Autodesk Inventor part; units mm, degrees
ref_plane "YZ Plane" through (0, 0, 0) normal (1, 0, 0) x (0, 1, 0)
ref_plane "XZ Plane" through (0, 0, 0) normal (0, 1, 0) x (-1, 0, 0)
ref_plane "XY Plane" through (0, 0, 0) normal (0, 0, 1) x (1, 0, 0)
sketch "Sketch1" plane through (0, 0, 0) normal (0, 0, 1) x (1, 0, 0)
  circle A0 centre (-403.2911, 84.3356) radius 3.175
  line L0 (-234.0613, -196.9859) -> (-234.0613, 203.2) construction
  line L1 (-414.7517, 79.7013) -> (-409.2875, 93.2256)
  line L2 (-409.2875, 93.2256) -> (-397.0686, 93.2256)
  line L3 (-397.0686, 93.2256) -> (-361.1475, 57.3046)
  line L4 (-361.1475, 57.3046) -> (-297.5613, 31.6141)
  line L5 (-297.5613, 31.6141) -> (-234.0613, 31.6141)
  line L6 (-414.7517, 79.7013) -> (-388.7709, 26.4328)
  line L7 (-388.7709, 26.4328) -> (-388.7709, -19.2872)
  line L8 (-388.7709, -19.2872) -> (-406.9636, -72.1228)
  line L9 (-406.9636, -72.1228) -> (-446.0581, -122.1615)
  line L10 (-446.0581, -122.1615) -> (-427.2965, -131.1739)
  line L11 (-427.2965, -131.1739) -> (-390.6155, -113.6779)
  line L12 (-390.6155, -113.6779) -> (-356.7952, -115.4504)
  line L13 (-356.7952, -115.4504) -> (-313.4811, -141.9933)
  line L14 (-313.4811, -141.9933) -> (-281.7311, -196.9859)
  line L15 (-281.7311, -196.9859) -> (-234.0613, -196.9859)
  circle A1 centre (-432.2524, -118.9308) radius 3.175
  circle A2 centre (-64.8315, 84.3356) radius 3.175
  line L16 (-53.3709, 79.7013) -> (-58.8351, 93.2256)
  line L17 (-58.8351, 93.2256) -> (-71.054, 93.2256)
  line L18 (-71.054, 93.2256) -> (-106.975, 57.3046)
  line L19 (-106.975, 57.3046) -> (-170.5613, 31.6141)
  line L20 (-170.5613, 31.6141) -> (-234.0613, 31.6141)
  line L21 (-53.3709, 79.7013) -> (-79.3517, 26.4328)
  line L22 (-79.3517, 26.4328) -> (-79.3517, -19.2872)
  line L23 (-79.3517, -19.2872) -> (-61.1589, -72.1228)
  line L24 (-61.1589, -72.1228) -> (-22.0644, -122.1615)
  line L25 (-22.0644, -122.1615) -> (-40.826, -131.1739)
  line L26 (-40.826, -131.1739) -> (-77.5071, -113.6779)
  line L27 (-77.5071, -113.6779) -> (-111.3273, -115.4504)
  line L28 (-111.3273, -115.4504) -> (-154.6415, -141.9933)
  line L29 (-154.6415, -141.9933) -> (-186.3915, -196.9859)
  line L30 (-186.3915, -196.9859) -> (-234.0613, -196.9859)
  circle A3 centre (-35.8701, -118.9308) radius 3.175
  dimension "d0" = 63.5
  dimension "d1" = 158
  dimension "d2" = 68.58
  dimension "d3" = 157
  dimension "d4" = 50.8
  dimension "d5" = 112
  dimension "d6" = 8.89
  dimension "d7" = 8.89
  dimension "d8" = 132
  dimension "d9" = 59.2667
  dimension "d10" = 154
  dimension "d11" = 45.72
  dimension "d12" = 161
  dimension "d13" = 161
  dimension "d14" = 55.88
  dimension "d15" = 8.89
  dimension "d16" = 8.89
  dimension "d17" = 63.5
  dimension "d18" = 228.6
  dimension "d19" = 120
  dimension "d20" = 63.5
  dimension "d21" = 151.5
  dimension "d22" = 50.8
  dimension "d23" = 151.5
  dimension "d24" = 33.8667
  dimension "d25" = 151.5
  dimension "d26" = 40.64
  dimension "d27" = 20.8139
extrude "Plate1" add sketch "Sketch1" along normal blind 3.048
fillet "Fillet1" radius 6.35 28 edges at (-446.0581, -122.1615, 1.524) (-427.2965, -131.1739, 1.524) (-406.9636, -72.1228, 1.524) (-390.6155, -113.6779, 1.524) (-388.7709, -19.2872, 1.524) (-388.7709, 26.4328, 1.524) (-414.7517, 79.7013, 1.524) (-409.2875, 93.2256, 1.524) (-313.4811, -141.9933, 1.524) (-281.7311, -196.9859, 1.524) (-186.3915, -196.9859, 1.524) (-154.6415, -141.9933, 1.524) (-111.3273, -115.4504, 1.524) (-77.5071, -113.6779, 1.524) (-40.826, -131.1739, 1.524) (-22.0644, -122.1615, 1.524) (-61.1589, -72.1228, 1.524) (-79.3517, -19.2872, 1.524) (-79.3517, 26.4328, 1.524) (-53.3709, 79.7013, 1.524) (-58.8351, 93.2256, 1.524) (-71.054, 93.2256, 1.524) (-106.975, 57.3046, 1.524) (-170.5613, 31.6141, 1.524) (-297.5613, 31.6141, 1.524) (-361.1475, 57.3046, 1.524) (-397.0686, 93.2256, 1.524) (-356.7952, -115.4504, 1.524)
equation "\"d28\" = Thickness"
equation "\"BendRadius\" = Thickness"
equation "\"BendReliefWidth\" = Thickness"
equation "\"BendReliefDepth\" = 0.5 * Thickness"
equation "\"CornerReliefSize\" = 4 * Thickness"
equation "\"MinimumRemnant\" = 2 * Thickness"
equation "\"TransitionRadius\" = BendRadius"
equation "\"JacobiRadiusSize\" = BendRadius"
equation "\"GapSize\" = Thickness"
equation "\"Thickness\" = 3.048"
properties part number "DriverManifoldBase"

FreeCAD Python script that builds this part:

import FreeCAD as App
import Part
import Sketcher

V = App.Vector
Q = App.Units.Quantity


def edges_at(feature, points):
    """Names of the edges that pass closest to the given points."""
    edges = feature.Shape.Edges
    near = lambda p: min(range(len(edges)), key=lambda i: edges[i].distToShape(Part.Vertex(*p))[0])
    return sorted({f"Edge{near(p) + 1}" for p in points})


def add_polygon(sketch, points):
    """Adds a closed chain of lines whose ends are joined by coincident constraints."""
    first, n = sketch.GeometryCount, len(points)
    for a, b in zip(points, points[1:] + points[:1]):
        sketch.addGeometry(Part.LineSegment(App.Vector(*a, 0), App.Vector(*b, 0)), False)
    for i in range(n):
        sketch.addConstraint(Sketcher.Constraint("Coincident", first + i, 2, first + (i + 1) % n, 1))

doc = App.newDocument("Part")
body = doc.addObject("PartDesign::Body", "Body")

# Sketch on XY plane
sketch1 = doc.addObject("Sketcher::SketchObject", "Sketch")
body.addObject(sketch1)
sketch1.AttachmentSupport = (doc.XY_Plane, [""])
sketch1.MapMode = "FlatFace"
add_polygon(sketch1, [(-409.2875, 93.2256), (-414.7517, 79.7013), (-388.7709, 26.4328), (-388.7709, -19.2872), (-406.9636, -72.1228), (-446.0581, -122.1615), (-427.2965, -131.1739), (-390.6155, -113.6779), (-356.7952, -115.4504), (-313.4811, -141.9933), (-281.7311, -196.9859), (-186.3915, -196.9859), (-154.6415, -141.9933), (-111.3273, -115.4504), (-77.5071, -113.6779), (-40.826, -131.1739), (-22.0644, -122.1615), (-61.1589, -72.1228), (-79.3517, -19.2872), (-79.3517, 26.4328), (-53.3709, 79.7013), (-58.8351, 93.2256), (-71.054, 93.2256), (-106.975, 57.3046), (-170.5613, 31.6141), (-297.5613, 31.6141), (-361.1475, 57.3046), (-397.0686, 93.2256)])  # lines 0-27
sketch1.addGeometry(Part.Circle(V(-432.2524, -118.9308, 0), V(0, 0, 1), 3.175), False)  # 28
sketch1.addGeometry(Part.Circle(V(-35.8701, -118.9308, 0), V(0, 0, 1), 3.175), False)  # 29
sketch1.addGeometry(Part.Circle(V(-403.2911, 84.3356, 0), V(0, 0, 1), 3.175), False)  # 30
sketch1.addGeometry(Part.Circle(V(-64.8315, 84.3356, 0), V(0, 0, 1), 3.175), False)  # 31
sketch1.addConstraint([
    Sketcher.Constraint("Vertical", 2),
    Sketcher.Constraint("Horizontal", 10),
    Sketcher.Constraint("Vertical", 18),
    Sketcher.Constraint("Horizontal", 21),
    Sketcher.Constraint("Horizontal", 24),
    Sketcher.Constraint("Horizontal", 27),
    Sketcher.Constraint("Equal", 28, 29),
    Sketcher.Constraint("Equal", 29, 30),
    Sketcher.Constraint("Equal", 30, 31),
    Sketcher.Constraint("Perpendicular", 20, 23),
    Sketcher.Constraint("Perpendicular", 0, 25),
    Sketcher.Constraint("Perpendicular", 22, 26),
    Sketcher.Constraint("Horizontal", 28, 3, 29, 3),
    Sketcher.Constraint("Horizontal", 30, 3, 31, 3),
    Sketcher.Constraint("Horizontal", 8, 2, 11, 2),
    Sketcher.Constraint("Horizontal", 7, 2, 12, 2),
    Sketcher.Constraint("Horizontal", 6, 2, 13, 2),
    Sketcher.Constraint("Horizontal", 5, 2, 14, 2),
    Sketcher.Constraint("Horizontal", 4, 2, 15, 2),
    Sketcher.Constraint("Horizontal", 3, 2, 16, 2),
    Sketcher.Constraint("Horizontal", 2, 2, 17, 2),
    Sketcher.Constraint("Horizontal", 1, 2, 18, 2),
    Sketcher.Constraint("Horizontal", 0, 2, 19, 2),
    Sketcher.Constraint("Horizontal", 22, 2, 25, 2),
    Sketcher.Constraint("Horizontal", 21, 2, 26, 2),
    Sketcher.Constraint("Equal", 21, 27),
    Sketcher.Constraint("Equal", 4, 9),
    Sketcher.Constraint("Equal", 9, 11),
    Sketcher.Constraint("Equal", 8, 12),
    Sketcher.Constraint("Equal", 7, 13),
    Sketcher.Constraint("Equal", 6, 14),
    Sketcher.Constraint("Equal", 5, 15),
    Sketcher.Constraint("Equal", 11, 16),
    Sketcher.Constraint("Equal", 3, 17),
    Sketcher.Constraint("Equal", 1, 19),
    Sketcher.Constraint("Equal", 0, 20),
    Sketcher.Constraint("Equal", 12, 22),
    Sketcher.Constraint("Equal", 22, 26),
    Sketcher.Constraint("Distance", 8, Q("2 in")),
    Sketcher.Constraint("DistanceY", 2, 2, 2, 1, Q("1.8 in")),
    Sketcher.Constraint("Angle", 0, Q("-112 deg")),
    Sketcher.Constraint("Distance", 3, Q("2.2 in")),
    Sketcher.Constraint("Distance", 4, Q("2.5 in")),
    Sketcher.Constraint("Distance", 6, Q("1.6 in")),
    Sketcher.Constraint("Distance", 23, Q("2.7 in")),
    Sketcher.Constraint("Diameter", 28, Q("0.25 in")),
    Sketcher.Constraint("DistanceX", 24, 2, 24, 1, Q("5 in")),
    Sketcher.Constraint("DistanceY", 31, 3, 20, 2, Q("0.35 in")),
    Sketcher.Constraint("Angle", 1, Q("-64 deg")),
    Sketcher.Constraint("Angle", 3, Q("-109 deg")),
    Sketcher.Constraint("Angle", 4, Q("-128 deg")),
    Sketcher.Constraint("Angle", 7, Q("-3 deg")),
    Sketcher.Constraint("Angle", 9, Q("-60 deg")),
    Sketcher.Constraint("Angle", 6, Q("25.5 deg")),
    Sketcher.Constraint("Angle", 8, Q("-31.5 deg")),
    Sketcher.Constraint("Distance", 1, 59.2666),
    Sketcher.Constraint("Distance", 5, 20.814),
    Sketcher.Constraint("Distance", 7, 33.8667),
    Sketcher.Constraint("DistanceX", 23, 2, -1, 1, Q("6.715 in")),
    Sketcher.Constraint("DistanceX", 28, 3, 0, 2, Q("0.689 in")),
    Sketcher.Constraint("DistanceY", 5, 2, 28, 3, Q("0.482 in")),
    Sketcher.Constraint("DistanceY", 5, 2, 2, 2, Q("4.405 in")),
    Sketcher.Constraint("DistanceY", 18, 2, 23, 2, Q("0.204 in")),
    Sketcher.Constraint("DistanceX", 10, 1, 10, 2, 95.3396),
    Sketcher.Constraint("DistanceX", 29, 3, -1, 1, Q("1.4122 in")),
    Sketcher.Constraint("DistanceX", 30, 3, -1, 1, Q("15.8776 in")),
    Sketcher.Constraint("DistanceY", -1, 1, 30, 3, Q("3.3203 in")),
    Sketcher.Constraint("DistanceX", 28, 3, 31, 3, Q("14.4654 in")),
])
pad1 = doc.addObject("PartDesign::Pad", "Pad")
body.addObject(pad1)
pad1.Profile = sketch1
pad1.Length = Q("0.12 in")
doc.recompute()

fillet = doc.addObject("PartDesign::Fillet", "Fillet")
body.addObject(fillet)
fillet.Base = (pad1, edges_at(pad1, [
    (-446.058, -122.162, 1.524),
    (-427.296, -131.174, 1.524),
    (-406.964, -72.123, 1.524),
    (-390.615, -113.678, 1.524),
    (-388.771, -19.287, 1.524),
    (-388.771, 26.433, 1.524),
    (-414.752, 79.701, 1.524),
    (-409.288, 93.226, 1.524),
    (-313.481, -141.993, 1.524),
    (-281.731, -196.986, 1.524),
    (-186.392, -196.986, 1.524),
    (-154.642, -141.993, 1.524),
    (-111.327, -115.45, 1.524),
    (-77.507, -113.678, 1.524),
    (-40.826, -131.174, 1.524),
    (-22.064, -122.162, 1.524),
    (-61.159, -72.123, 1.524),
    (-79.352, -19.287, 1.524),
    (-79.352, 26.433, 1.524),
    (-53.371, 79.701, 1.524),
    (-58.835, 93.226, 1.524),
    (-71.054, 93.226, 1.524),
    (-106.975, 57.305, 1.524),
    (-170.561, 31.614, 1.524),
    (-297.561, 31.614, 1.524),
    (-361.147, 57.305, 1.524),
    (-397.069, 93.226, 1.524),
    (-356.795, -115.45, 1.524),
]))
fillet.Radius = Q("0.25 in")

doc.recompute()
